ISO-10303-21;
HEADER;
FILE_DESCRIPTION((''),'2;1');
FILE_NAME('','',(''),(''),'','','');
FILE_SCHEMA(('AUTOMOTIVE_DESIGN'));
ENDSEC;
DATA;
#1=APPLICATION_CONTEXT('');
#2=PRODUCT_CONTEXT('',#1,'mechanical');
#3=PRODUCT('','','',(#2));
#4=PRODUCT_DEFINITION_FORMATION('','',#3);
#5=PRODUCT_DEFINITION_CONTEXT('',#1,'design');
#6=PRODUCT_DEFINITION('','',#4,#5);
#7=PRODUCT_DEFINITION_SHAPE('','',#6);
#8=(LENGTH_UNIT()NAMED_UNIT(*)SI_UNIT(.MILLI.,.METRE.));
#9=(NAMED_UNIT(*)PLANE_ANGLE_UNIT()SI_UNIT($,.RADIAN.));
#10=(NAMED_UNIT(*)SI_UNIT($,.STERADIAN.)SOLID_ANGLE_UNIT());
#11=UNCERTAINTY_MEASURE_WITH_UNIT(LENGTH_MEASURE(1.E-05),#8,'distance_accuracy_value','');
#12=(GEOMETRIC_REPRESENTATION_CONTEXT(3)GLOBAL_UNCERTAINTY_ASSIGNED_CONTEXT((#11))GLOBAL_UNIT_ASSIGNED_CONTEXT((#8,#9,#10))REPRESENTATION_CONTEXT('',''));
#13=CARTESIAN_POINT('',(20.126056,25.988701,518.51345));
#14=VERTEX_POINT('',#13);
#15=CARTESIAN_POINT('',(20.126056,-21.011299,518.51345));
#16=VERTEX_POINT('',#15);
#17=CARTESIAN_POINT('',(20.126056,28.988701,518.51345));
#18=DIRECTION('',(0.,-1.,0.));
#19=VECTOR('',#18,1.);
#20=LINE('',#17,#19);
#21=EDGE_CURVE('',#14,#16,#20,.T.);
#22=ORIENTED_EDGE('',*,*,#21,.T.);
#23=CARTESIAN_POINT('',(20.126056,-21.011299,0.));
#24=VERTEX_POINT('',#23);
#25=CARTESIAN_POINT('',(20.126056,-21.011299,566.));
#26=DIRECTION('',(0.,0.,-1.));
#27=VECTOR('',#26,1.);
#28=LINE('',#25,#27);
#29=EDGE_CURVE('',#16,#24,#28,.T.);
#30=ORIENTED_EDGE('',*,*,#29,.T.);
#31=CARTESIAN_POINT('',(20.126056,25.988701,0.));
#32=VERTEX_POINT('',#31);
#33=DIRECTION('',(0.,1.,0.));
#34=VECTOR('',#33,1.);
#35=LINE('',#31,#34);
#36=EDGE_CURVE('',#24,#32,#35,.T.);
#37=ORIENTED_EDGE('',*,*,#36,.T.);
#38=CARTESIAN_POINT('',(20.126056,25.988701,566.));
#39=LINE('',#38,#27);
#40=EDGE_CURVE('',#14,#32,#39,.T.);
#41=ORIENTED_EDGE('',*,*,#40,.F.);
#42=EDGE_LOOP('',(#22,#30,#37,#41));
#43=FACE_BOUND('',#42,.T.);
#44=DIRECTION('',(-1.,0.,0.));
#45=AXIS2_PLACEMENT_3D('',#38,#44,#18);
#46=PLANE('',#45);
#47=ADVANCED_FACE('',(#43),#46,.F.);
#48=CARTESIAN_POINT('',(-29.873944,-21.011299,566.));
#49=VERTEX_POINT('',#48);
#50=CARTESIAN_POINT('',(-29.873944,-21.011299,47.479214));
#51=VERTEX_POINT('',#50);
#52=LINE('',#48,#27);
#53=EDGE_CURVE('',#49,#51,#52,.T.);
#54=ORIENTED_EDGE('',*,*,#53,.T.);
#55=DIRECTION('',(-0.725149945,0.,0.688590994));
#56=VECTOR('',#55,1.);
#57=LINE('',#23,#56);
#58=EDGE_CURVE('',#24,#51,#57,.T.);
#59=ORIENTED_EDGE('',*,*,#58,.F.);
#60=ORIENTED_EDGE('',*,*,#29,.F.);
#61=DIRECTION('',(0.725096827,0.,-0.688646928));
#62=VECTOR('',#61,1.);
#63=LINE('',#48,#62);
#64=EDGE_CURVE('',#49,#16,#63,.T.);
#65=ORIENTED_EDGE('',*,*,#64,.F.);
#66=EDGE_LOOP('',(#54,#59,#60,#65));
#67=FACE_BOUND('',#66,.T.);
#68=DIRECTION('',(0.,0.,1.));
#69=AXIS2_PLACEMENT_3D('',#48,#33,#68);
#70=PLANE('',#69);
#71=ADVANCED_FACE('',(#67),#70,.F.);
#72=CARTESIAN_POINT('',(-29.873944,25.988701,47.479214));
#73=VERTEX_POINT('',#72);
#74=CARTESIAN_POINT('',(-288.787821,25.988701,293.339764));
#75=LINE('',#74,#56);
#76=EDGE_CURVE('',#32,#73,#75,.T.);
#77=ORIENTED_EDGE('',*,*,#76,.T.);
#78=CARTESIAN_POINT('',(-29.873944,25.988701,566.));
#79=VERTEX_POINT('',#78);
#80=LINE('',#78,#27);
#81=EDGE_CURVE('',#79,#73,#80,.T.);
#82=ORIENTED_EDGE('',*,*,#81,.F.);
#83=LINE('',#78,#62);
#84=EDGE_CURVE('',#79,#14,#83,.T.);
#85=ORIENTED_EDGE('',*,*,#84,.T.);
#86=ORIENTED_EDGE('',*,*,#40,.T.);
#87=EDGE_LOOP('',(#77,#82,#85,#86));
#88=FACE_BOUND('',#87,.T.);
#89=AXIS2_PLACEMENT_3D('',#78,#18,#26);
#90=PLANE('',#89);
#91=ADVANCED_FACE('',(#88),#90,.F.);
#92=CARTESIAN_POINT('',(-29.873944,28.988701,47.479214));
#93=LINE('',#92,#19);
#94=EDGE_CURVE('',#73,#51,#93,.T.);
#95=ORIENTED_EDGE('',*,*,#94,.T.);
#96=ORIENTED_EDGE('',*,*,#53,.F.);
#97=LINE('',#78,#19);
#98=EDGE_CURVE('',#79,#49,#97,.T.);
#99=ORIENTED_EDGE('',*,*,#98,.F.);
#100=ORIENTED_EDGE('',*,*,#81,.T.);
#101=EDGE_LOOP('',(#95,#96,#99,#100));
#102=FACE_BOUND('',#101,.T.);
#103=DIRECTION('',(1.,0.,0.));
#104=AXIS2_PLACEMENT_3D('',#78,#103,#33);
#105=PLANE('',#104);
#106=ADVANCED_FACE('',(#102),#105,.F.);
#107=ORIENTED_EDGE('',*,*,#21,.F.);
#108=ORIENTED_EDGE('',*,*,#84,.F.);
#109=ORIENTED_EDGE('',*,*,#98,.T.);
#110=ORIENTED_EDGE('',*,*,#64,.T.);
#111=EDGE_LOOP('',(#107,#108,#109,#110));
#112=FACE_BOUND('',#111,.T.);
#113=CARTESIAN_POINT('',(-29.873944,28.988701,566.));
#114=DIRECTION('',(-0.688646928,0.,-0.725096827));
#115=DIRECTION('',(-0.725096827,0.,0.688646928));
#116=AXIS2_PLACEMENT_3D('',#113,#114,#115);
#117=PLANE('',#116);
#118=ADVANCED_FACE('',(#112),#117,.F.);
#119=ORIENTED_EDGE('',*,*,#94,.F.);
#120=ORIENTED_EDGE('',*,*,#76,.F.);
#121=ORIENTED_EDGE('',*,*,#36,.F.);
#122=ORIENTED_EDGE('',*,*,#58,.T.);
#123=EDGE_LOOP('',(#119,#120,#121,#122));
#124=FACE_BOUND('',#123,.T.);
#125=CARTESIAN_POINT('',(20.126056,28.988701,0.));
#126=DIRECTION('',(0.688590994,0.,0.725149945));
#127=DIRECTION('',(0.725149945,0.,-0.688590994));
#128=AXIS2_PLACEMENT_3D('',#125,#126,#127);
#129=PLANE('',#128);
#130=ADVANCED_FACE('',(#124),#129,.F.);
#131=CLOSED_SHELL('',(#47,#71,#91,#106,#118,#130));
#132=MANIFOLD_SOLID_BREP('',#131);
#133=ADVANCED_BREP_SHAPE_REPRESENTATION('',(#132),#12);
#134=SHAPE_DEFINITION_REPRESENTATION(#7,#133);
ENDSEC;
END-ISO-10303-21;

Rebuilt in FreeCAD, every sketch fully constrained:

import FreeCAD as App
import Part
import Sketcher
from FreeCAD import Vector
Q = App.Units.Quantity


def add_polygon(sketch, points):
    """Adds a closed chain of lines whose ends are joined by coincident constraints."""
    first, n = sketch.GeometryCount, len(points)
    for a, b in zip(points, points[1:] + points[:1]):
        sketch.addGeometry(Part.LineSegment(App.Vector(*a, 0), App.Vector(*b, 0)), False)
    for i in range(n):
        sketch.addConstraint(Sketcher.Constraint("Coincident", first + i, 2, first + (i + 1) % n, 1))

doc = App.newDocument("Part")
body = doc.addObject("PartDesign::Body", "Body")

# Sketch on XY plane
sketch1 = body.newObject("Sketcher::SketchObject", "Sketch")
sketch1.AttachmentSupport = (doc.getObject("XY_Plane"), [""])
sketch1.MapMode = "FlatFace"
add_polygon(sketch1, [(-29.873944, 25.988701), (-29.873944, -21.011299), (20.126056, -21.011299), (20.126056, 25.988701)])  # lines 0-3
sketch1.addConstraint([
    Sketcher.Constraint("Vertical", 0),
    Sketcher.Constraint("Horizontal", 1),
    Sketcher.Constraint("Vertical", 2),
    Sketcher.Constraint("Horizontal", 3),
    Sketcher.Constraint("DistanceX", 1, 1, 1, 2, Q("50 mm")),
    Sketcher.Constraint("DistanceY", 0, 2, 0, 1, Q("47 mm")),
    Sketcher.Constraint("DistanceY", 0, 2, -1, 1, Q("21.011299 mm")),
    Sketcher.Constraint("DistanceX", 0, 2, -1, 1, Q("29.873944 mm")),
])
pad1 = body.newObject("PartDesign::Pad", "Pad")
pad1.Profile = sketch1
pad1.Length = 566

# Sketch on XZ plane
sketch2 = body.newObject("Sketcher::SketchObject", "Sketch001")
sketch2.AttachmentSupport = (doc.getObject("XZ_Plane"), [""])
sketch2.MapMode = "FlatFace"
sketch2.AttachmentOffset = App.Placement(Vector(0, 0, 21.011299), App.Rotation())
add_polygon(sketch2, [(-29.873944, 566), (20.126056, 518.51345), (20.126056, 566)])  # lines 0-2
add_polygon(sketch2, [(-29.873944, 0), (20.126056, 0), (-29.873944, 47.479214)])  # lines 3-5
sketch2.addConstraint([
    Sketcher.Constraint("Vertical", 1),
    Sketcher.Constraint("Horizontal", 2),
    Sketcher.Constraint("Horizontal", 3),
    Sketcher.Constraint("Vertical", 5),
    Sketcher.Constraint("PointOnObject", 3, 2, -1),
    Sketcher.Constraint("Vertical", 1, 2, 3, 2),
    Sketcher.Constraint("Vertical", 2, 2, 4, 2),
    Sketcher.Constraint("DistanceX", 2, 2, 2, 1, Q("50 mm")),
    Sketcher.Constraint("DistanceY", -1, 1, 1, 2, Q("566 mm")),
    Sketcher.Constraint("DistanceY", 1, 1, 1, 2, Q("47.48655 mm")),
    Sketcher.Constraint("DistanceY", 5, 2, 5, 1, Q("47.479214 mm")),
    Sketcher.Constraint("DistanceX", -1, 1, 0, 2, Q("20.126056 mm")),
])
pocket1 = body.newObject("PartDesign::Pocket", "Pocket")
pocket1.Profile = sketch2
pocket1.Length = 50

doc.recompute()
